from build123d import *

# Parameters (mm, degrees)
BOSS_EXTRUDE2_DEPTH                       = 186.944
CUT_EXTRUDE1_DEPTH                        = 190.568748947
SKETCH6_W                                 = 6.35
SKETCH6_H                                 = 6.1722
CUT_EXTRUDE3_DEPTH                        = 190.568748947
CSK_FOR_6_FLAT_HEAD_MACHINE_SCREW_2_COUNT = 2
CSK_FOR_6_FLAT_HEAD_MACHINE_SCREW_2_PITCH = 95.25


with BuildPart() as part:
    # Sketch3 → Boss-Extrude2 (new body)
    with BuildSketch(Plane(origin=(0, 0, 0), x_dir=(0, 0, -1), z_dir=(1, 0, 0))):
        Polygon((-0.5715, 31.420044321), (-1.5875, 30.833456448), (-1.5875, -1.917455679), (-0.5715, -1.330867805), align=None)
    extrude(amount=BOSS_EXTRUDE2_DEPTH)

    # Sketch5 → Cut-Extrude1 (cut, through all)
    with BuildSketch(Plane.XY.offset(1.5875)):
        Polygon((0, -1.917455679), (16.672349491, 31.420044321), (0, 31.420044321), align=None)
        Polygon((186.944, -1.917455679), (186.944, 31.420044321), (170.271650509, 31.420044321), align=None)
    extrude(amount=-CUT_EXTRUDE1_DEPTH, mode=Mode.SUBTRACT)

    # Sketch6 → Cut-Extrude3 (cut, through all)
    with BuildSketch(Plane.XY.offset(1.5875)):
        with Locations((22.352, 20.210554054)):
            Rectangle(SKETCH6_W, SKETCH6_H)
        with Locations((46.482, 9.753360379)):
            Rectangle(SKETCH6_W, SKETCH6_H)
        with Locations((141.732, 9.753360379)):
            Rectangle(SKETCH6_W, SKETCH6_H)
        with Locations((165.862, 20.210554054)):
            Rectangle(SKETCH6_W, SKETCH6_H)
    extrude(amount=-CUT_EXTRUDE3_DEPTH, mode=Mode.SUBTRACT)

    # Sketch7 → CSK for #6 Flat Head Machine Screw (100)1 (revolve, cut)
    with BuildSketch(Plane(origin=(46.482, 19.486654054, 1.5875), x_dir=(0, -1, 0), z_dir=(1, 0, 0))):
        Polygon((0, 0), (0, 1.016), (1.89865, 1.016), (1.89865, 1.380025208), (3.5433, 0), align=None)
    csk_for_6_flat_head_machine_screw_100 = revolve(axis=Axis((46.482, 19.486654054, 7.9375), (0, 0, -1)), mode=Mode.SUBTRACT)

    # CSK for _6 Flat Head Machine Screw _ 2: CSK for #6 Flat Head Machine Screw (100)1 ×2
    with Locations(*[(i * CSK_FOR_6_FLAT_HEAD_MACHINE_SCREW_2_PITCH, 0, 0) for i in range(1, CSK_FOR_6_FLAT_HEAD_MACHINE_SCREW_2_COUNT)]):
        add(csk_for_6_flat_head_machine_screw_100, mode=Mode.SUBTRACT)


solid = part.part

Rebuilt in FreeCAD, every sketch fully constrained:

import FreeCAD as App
import Part
import Sketcher

V = App.Vector
Q = App.Units.Quantity


def add_polygon(sketch, points):
    """Adds a closed chain of lines whose ends are joined by coincident constraints."""
    first, n = sketch.GeometryCount, len(points)
    for a, b in zip(points, points[1:] + points[:1]):
        sketch.addGeometry(Part.LineSegment(App.Vector(*a, 0), App.Vector(*b, 0)), False)
    for i in range(n):
        sketch.addConstraint(Sketcher.Constraint("Coincident", first + i, 2, first + (i + 1) % n, 1))

doc = App.newDocument("Part")
params = doc.addObject("Spreadsheet::Sheet", "Params")
for row, (alias, value) in enumerate([
    ("pad1_length", "7.36 in"),
    ("sketch2_height", "1.3125 in"),
    ("sketch3_width", "0.25 in"),
    ("sketch3_height", "0.243 in"),
    ("sketch4_height", "0.04 in"),
    ("groove_angle", "360 deg"),
    ("linearpattern_pitch", "3.75 in"),
], start=1):
    params.set(f"A{row}", alias)
    params.set(f"B{row}", "=" + value)
    params.setAlias(f"B{row}", alias)

body = doc.addObject("PartDesign::Body", "Body")

# Sketch on YZ plane
sketch1 = doc.addObject("Sketcher::SketchObject", "Sketch")
body.addObject(sketch1)
sketch1.AttachmentSupport = (doc.YZ_Plane, [""])
sketch1.MapMode = "FlatFace"
add_polygon(sketch1, [(31.4, 0.6), (30.8, 1.6), (-1.9, 1.6), (-1.3, 0.6)])  # lines 0-3
sketch1.addConstraint([
    Sketcher.Constraint("Horizontal", 1),
    Sketcher.Constraint("Horizontal", 3),
    Sketcher.Constraint("Parallel", 0, 2),
    Sketcher.Constraint("Angle", 0, Q("120 deg")),
    Sketcher.Constraint("DistanceY", 2, 2, 1, 2, Q("0.04 in")),
    Sketcher.Constraint("DistanceY", -1, 1, 0, 2, Q("0.0625 in")),
    Sketcher.Constraint("DistanceX", 1, 2, 3, 2, Q("1.3125 in")),
    Sketcher.Constraint("DistanceX", -1, 1, 0, 2, 30.833456),
])
pad1 = doc.addObject("PartDesign::Pad", "Pad")
body.addObject(pad1)
pad1.Profile = sketch1
pad1.setExpression("Length", "Params.pad1_length")

# Sketch on XY plane
sketch2 = doc.addObject("Sketcher::SketchObject", "Sketch001")
body.addObject(sketch2)
sketch2.AttachmentSupport = (doc.XY_Plane, [""])
sketch2.MapMode = "FlatFace"
sketch2.AttachmentOffset = App.Placement(V(0, 0, 0.0625 * 25.4), App.Rotation())
add_polygon(sketch2, [(0, -2), (17, 31), (0, 31)])  # lines 0-2
add_polygon(sketch2, [(187, -2), (187, 31), (170, 31)])  # lines 3-5
sketch2.addConstraint([
    Sketcher.Constraint("Horizontal", 1),
    Sketcher.Constraint("Vertical", 2),
    Sketcher.Constraint("Vertical", 3),
    Sketcher.Constraint("Horizontal", 4),
    Sketcher.Constraint("PointOnObject", 1, 2, -2),
    Sketcher.Constraint("Horizontal", 1, 2, 3, 2),
    Sketcher.Constraint("Horizontal", 2, 2, 5, 2),
    Sketcher.Constraint("Equal", 1, 4),
    Sketcher.Constraint("DistanceY", 2, 2, 2, 1, Q("1.3125 in")),
    Sketcher.Constraint("DistanceX", -1, 1, 3, 2, Q("7.36 in")),
    Sketcher.Constraint("Angle", 0, Q("63.43 deg")),
    Sketcher.Constraint("DistanceY", -1, 1, 0, 2, 31.420044),
])
sketch2.setExpression("Constraints[14]", "Params.sketch2_height")
pocket1 = doc.addObject("PartDesign::Pocket", "Pocket")
body.addObject(pocket1)
pocket1.Profile = sketch2
pocket1.Type = "ThroughAll"

# Sketch on XY plane
sketch3 = doc.addObject("Sketcher::SketchObject", "Sketch002")
body.addObject(sketch3)
sketch3.AttachmentSupport = (doc.XY_Plane, [""])
sketch3.MapMode = "FlatFace"
sketch3.AttachmentOffset = App.Placement(V(0, 0, 0.0625 * 25.4), App.Rotation())
add_polygon(sketch3, [(19, 23), (19, 17), (26, 17), (26, 23)])  # lines 0-3
add_polygon(sketch3, [(43, 13), (43, 7), (50, 7), (50, 13)])  # lines 4-7
add_polygon(sketch3, [(139, 13), (139, 7), (145, 7), (145, 13)])  # lines 8-11
add_polygon(sketch3, [(163, 23), (163, 17), (169, 17), (169, 23)])  # lines 12-15
sketch3.addConstraint([
    Sketcher.Constraint("Vertical", 0),
    Sketcher.Constraint("Horizontal", 1),
    Sketcher.Constraint("Vertical", 2),
    Sketcher.Constraint("Horizontal", 3),
    Sketcher.Constraint("Vertical", 4),
    Sketcher.Constraint("Horizontal", 5),
    Sketcher.Constraint("Vertical", 6),
    Sketcher.Constraint("Horizontal", 7),
    Sketcher.Constraint("Vertical", 8),
    Sketcher.Constraint("Horizontal", 9),
    Sketcher.Constraint("Vertical", 10),
    Sketcher.Constraint("Horizontal", 11),
    Sketcher.Constraint("Vertical", 12),
    Sketcher.Constraint("Horizontal", 13),
    Sketcher.Constraint("Vertical", 14),
    Sketcher.Constraint("Horizontal", 15),
    Sketcher.Constraint("Horizontal", 5, 2, 8, 2),
    Sketcher.Constraint("Horizontal", 7, 2, 10, 2),
    Sketcher.Constraint("Horizontal", 1, 2, 12, 2),
    Sketcher.Constraint("Horizontal", 3, 2, 14, 2),
    Sketcher.Constraint("Equal", 3, 5),
    Sketcher.Constraint("Equal", 7, 9),
    Sketcher.Constraint("Equal", 11, 13),
    Sketcher.Constraint("Equal", 2, 4),
    Sketcher.Constraint("DistanceX", 4, 2, 9, 2, Q("4 in")),
    Sketcher.Constraint("DistanceX", 1, 1, 1, 2, Q("0.25 in")),
    Sketcher.Constraint("DistanceX", 1, 2, 4, 2, Q("0.7 in")),
    Sketcher.Constraint("DistanceX", 10, 2, 12, 2, Q("0.7 in")),
    Sketcher.Constraint("DistanceY", 0, 2, 0, 1, Q("0.243 in")),
    Sketcher.Constraint("DistanceX", -1, 1, 0, 2, Q("0.755 in")),
    Sketcher.Constraint("DistanceY", -1, 1, 4, 2, 6.66726),
    Sketcher.Constraint("DistanceY", -1, 1, 0, 2, 17.124454),
])
sketch3.setExpression("Constraints[41]", "Params.sketch3_width")
sketch3.setExpression("Constraints[44]", "Params.sketch3_height")
pocket2 = doc.addObject("PartDesign::Pocket", "Pocket001")
body.addObject(pocket2)
pocket2.Profile = sketch3
pocket2.Type = "ThroughAll"

# Sketch on YZ plane
sketch4 = doc.addObject("Sketcher::SketchObject", "Sketch003")
body.addObject(sketch4)
sketch4.AttachmentSupport = (doc.YZ_Plane, [""])
sketch4.MapMode = "FlatFace"
sketch4.AttachmentOffset = App.Placement(V(0, 0, 1.83 * 25.4), App.Rotation())
add_polygon(sketch4, [(19.49, 0.57), (19.49, 1.59), (15.94, 1.59), (17.59, 0.21), (17.59, 0.57)])  # lines 0-4
sketch4.addGeometry(Part.LineSegment(V(19.49, 1.59, 0), V(19.49, 0.21, 0)), True)  # axis
sketch4.addConstraint([
    Sketcher.Constraint("Vertical", 0),
    Sketcher.Constraint("Horizontal", 1),
    Sketcher.Constraint("Vertical", 3),
    Sketcher.Constraint("Horizontal", 4),
    Sketcher.Constraint("Vertical", 5),
    Sketcher.Constraint("Coincident", 5, 1, 0, 2),
    Sketcher.Constraint("Horizontal", 2, 2, 5, 2),
    Sketcher.Constraint("Angle", 2, Q("-40 deg")),
    Sketcher.Constraint("DistanceY", 0, 1, 0, 2, Q("0.04 in")),
    Sketcher.Constraint("DistanceX", 1, 2, 1, 1, Q("0.1395 in")),
    Sketcher.Constraint("DistanceY", -1, 1, 0, 2, Q("0.0625 in")),
    Sketcher.Constraint("DistanceX", 4, 1, 4, 2, 1.89865),
    Sketcher.Constraint("DistanceX", -1, 1, 0, 2, 19.486654),
])
sketch4.setExpression("Constraints[13]", "Params.sketch4_height")
groove = doc.addObject("PartDesign::Groove", "Groove")
body.addObject(groove)
groove.Profile = sketch4
groove.ReferenceAxis = (sketch4, ["Axis0"])
groove.setExpression("Angle", "Params.groove_angle")
doc.recompute()

linearpattern = doc.addObject("PartDesign::LinearPattern", "LinearPattern")
body.addObject(linearpattern)
linearpattern.Originals = [groove]
linearpattern.Direction = (doc.X_Axis, [""])
linearpattern.Mode = "offset"
linearpattern.setExpression("Offset", "Params.linearpattern_pitch")
linearpattern.Occurrences = 2
body.Tip = linearpattern

doc.recompute()
